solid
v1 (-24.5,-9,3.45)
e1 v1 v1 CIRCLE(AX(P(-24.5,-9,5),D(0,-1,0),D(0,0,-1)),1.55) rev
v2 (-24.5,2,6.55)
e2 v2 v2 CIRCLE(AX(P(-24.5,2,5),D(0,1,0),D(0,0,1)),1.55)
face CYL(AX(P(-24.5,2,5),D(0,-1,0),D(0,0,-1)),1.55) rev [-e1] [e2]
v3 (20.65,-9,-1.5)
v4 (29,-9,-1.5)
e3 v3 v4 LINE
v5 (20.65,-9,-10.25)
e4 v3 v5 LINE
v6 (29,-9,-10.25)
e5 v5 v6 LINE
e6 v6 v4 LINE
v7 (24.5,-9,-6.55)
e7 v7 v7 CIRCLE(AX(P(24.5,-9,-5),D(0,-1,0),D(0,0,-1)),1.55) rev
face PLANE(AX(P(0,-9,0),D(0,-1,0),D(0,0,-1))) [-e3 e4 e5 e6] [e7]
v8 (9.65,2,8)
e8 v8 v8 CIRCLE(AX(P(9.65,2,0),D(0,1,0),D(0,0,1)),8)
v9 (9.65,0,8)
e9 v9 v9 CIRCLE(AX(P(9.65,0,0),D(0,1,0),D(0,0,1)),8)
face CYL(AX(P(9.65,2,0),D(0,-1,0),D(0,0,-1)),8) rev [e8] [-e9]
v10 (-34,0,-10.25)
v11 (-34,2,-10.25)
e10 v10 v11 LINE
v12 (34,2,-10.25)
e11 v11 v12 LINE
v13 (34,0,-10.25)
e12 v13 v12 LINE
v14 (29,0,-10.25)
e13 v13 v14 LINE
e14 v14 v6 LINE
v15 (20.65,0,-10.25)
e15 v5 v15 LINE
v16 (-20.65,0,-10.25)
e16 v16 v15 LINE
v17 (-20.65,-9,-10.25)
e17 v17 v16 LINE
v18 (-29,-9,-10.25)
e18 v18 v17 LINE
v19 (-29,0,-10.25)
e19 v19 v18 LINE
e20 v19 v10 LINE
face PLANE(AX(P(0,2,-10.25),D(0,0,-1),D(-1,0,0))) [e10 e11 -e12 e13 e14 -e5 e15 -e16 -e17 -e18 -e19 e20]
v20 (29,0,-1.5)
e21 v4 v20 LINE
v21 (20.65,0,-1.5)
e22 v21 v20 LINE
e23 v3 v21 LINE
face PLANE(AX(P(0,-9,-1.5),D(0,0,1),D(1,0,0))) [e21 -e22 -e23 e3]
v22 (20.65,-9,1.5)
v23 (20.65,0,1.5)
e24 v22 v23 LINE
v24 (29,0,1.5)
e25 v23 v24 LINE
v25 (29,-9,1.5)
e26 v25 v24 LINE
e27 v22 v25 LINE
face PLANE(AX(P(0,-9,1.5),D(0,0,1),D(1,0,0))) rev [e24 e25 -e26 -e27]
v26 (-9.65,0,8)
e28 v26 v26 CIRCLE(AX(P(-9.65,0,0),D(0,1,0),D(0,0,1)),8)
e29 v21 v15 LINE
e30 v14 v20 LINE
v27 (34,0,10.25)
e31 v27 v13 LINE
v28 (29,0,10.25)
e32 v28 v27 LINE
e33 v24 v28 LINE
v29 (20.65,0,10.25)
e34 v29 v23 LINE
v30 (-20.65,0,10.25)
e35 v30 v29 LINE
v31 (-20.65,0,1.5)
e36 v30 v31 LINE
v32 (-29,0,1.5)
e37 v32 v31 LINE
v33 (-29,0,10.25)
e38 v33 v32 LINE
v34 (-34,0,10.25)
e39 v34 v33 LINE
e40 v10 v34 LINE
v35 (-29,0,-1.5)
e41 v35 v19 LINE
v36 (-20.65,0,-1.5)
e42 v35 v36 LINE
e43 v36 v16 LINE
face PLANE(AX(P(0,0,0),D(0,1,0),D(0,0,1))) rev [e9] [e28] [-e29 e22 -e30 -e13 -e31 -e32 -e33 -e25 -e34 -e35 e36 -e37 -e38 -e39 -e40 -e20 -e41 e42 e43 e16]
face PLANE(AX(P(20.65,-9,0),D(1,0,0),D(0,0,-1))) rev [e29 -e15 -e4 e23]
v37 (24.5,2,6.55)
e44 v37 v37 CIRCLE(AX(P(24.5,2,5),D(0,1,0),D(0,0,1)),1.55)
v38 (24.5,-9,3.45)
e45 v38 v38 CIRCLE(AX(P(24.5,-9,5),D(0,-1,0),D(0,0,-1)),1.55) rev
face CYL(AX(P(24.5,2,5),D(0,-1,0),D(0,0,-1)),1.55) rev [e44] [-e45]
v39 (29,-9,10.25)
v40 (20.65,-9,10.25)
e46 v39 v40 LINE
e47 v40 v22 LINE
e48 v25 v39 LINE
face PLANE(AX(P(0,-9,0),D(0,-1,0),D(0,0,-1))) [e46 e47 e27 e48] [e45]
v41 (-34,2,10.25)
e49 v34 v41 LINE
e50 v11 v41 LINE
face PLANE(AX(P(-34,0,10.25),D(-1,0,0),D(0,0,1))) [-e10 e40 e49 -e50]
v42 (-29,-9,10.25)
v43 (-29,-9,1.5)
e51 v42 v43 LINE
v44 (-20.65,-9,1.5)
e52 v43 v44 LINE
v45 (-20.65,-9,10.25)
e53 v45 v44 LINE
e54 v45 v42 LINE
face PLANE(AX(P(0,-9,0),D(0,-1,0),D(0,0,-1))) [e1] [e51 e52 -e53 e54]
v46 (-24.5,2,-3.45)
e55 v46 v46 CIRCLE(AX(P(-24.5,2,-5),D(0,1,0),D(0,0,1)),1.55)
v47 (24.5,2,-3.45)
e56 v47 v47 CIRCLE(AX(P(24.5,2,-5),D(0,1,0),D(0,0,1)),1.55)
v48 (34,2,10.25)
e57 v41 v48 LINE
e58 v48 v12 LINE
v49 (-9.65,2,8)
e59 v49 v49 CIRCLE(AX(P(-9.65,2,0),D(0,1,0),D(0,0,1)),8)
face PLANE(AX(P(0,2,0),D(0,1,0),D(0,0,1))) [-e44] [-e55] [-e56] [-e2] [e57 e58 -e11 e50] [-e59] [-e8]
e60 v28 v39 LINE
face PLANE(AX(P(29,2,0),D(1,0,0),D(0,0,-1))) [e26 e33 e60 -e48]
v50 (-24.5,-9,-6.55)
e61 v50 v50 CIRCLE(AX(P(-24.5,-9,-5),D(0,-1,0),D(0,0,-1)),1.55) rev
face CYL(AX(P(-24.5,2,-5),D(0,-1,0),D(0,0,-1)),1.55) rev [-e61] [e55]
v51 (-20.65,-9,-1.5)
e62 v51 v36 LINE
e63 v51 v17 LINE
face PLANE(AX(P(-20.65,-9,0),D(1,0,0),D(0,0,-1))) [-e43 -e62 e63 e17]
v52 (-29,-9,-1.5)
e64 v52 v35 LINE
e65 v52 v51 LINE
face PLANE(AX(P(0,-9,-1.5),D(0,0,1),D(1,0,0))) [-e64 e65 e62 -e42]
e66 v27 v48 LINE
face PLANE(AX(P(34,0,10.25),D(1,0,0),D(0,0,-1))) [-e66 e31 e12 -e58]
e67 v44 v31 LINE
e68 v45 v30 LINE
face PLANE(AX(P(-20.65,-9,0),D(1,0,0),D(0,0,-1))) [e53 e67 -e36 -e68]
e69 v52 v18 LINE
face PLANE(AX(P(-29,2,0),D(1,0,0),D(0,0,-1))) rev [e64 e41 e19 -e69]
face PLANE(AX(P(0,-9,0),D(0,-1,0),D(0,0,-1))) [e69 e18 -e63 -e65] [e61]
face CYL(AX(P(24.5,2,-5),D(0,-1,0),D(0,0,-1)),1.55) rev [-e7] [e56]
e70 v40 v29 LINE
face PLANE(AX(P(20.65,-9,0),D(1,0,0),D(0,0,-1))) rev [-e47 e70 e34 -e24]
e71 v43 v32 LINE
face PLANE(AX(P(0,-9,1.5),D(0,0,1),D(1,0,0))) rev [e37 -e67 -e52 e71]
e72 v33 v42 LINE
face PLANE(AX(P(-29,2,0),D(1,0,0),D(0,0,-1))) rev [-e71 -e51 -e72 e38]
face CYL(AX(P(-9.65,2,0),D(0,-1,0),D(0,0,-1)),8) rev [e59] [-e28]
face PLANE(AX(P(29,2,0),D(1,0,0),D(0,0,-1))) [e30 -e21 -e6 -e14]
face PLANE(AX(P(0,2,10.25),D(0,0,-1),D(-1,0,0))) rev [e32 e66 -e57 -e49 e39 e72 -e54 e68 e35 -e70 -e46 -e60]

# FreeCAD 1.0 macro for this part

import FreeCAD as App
import Part
import Sketcher
Q = App.Units.Quantity


def add_polygon(sketch, points):
    """Adds a closed chain of lines whose ends are joined by coincident constraints."""
    first, n = sketch.GeometryCount, len(points)
    for a, b in zip(points, points[1:] + points[:1]):
        sketch.addGeometry(Part.LineSegment(App.Vector(*a, 0), App.Vector(*b, 0)), False)
    for i in range(n):
        sketch.addConstraint(Sketcher.Constraint("Coincident", first + i, 2, first + (i + 1) % n, 1))

doc = App.newDocument("Part")
params = doc.addObject("Spreadsheet::Sheet", "Params")
for row, (alias, value) in enumerate([
    ("sketch1_diameter", "16 mm"),
    ("sketch1_diameter2", "3.1 mm"),
    ("sketch1_width", "58 mm"),
    ("sketch1_height", "20.5 mm"),
    ("pad1_length", "2 mm"),
    ("sketch2_diameter", "3.1 mm"),
    ("sketch2_width", "8.35 mm"),
    ("sketch2_height", "8.75 mm"),
    ("pad2_length", "9 mm"),
    ("sketch3_width", "5 mm"),
    ("sketch3_height", "20.5 mm"),
    ("pad3_length", "2 mm"),
], start=1):
    params.set(f"A{row}", alias)
    params.set(f"B{row}", "=" + value)
    params.setAlias(f"B{row}", alias)

body = doc.addObject("PartDesign::Body", "Body")

sketch1 = body.newObject("Sketcher::SketchObject", "Sketch")
sketch1.AttachmentSupport = (doc.getObject("XZ_Plane"), [""])
sketch1.MapMode = "FlatFace"
add_polygon(sketch1, [(-29, -10.2), (-29, 10.2), (29, 10.2), (29, -10.2)])
sketch1.addGeometry(Part.Circle(App.Vector(-24.5, 5, 0), App.Vector(0, 0, 1), 1.6), False)
sketch1.addGeometry(Part.Circle(App.Vector(24.5, 5, 0), App.Vector(0, 0, 1), 1.6), False)
sketch1.addGeometry(Part.Circle(App.Vector(-9.7, 0, 0), App.Vector(0, 0, 1), 8), False)
sketch1.addGeometry(Part.Circle(App.Vector(-24.5, -5, 0), App.Vector(0, 0, 1), 1.6), False)
sketch1.addGeometry(Part.Circle(App.Vector(9.7, 0, 0), App.Vector(0, 0, 1), 8), False)
sketch1.addGeometry(Part.Circle(App.Vector(24.5, -5, 0), App.Vector(0, 0, 1), 1.6), False)
sketch1.addConstraint(Sketcher.Constraint("Vertical", 0))
sketch1.addConstraint(Sketcher.Constraint("Horizontal", 1))
sketch1.addConstraint(Sketcher.Constraint("Vertical", 2))
sketch1.addConstraint(Sketcher.Constraint("Horizontal", 3))
sketch1.addConstraint(Sketcher.Constraint("Equal", 4, 5))
sketch1.addConstraint(Sketcher.Constraint("Equal", 5, 7))
sketch1.addConstraint(Sketcher.Constraint("Equal", 6, 8))
sketch1.addConstraint(Sketcher.Constraint("Equal", 7, 9))
sketch1.addConstraint(Sketcher.Constraint("Symmetric", 5, 3, 7, 3, -1, 1))
sketch1.addConstraint(Sketcher.Constraint("Symmetric", 6, 3, 8, 3, -1, 1))
sketch1.addConstraint(Sketcher.Constraint("Symmetric", 4, 3, 9, 3, -1, 1))
sketch1.addConstraint(Sketcher.Constraint("Symmetric", 0, 2, 2, 2, -1, 1))
sketch1.addConstraint(Sketcher.Constraint("Symmetric", 4, 3, 5, 3, -2))
sketch1.addConstraint(Sketcher.Constraint("PointOnObject", 6, 3, -1))
sketch1.addConstraint(Sketcher.Constraint("Diameter", 6, Q("16 mm")))
sketch1.addConstraint(Sketcher.Constraint("Diameter", 4, Q("3.1 mm")))
sketch1.addConstraint(Sketcher.Constraint("DistanceX", 1, 1, 1, 2, Q("58 mm")))
sketch1.addConstraint(Sketcher.Constraint("DistanceY", 0, 1, 0, 2, Q("20.5 mm")))
sketch1.addConstraint(Sketcher.Constraint("DistanceY", -1, 1, 4, 3, Q("5 mm")))
sketch1.addConstraint(Sketcher.Constraint("DistanceX", 4, 3, 5, 3, Q("49 mm")))
sketch1.addConstraint(Sketcher.Constraint("DistanceX", 6, 3, 8, 3, Q("19.3 mm")))
sketch1.setExpression("Constraints[18]", "Params.sketch1_diameter")
sketch1.setExpression("Constraints[19]", "Params.sketch1_diameter2")
sketch1.setExpression("Constraints[20]", "Params.sketch1_width")
sketch1.setExpression("Constraints[21]", "Params.sketch1_height")
pad1 = body.newObject("PartDesign::Pad", "Pad")
pad1.Profile = sketch1
pad1.setExpression("Length", "Params.pad1_length")
pad1.Reversed = True

sketch2 = body.newObject("Sketcher::SketchObject", "Sketch001")
sketch2.AttachmentSupport = (doc.getObject("XZ_Plane"), [""])
sketch2.MapMode = "FlatFace"
add_polygon(sketch2, [(-29, 10.2), (-29, 1.5), (-20.6, 1.5), (-20.6, 10.2)])
sketch2.addGeometry(Part.Circle(App.Vector(-24.5, 5, 0), App.Vector(0, 0, 1), 1.6), False)
add_polygon(sketch2, [(-29, -1.5), (-29, -10.2), (-20.6, -10.2), (-20.6, -1.5)])
sketch2.addGeometry(Part.Circle(App.Vector(-24.5, -5, 0), App.Vector(0, 0, 1), 1.6), False)
add_polygon(sketch2, [(20.6, 10.2), (20.6, 1.5), (29, 1.5), (29, 10.2)])
sketch2.addGeometry(Part.Circle(App.Vector(24.5, 5, 0), App.Vector(0, 0, 1), 1.6), False)
add_polygon(sketch2, [(20.6, -1.5), (20.6, -10.2), (29, -10.2), (29, -1.5)])
sketch2.addGeometry(Part.Circle(App.Vector(24.5, -5, 0), App.Vector(0, 0, 1), 1.6), False)
sketch2.addConstraint(Sketcher.Constraint("Vertical", 0))
sketch2.addConstraint(Sketcher.Constraint("Horizontal", 1))
sketch2.addConstraint(Sketcher.Constraint("Vertical", 2))
sketch2.addConstraint(Sketcher.Constraint("Horizontal", 3))
sketch2.addConstraint(Sketcher.Constraint("Vertical", 5))
sketch2.addConstraint(Sketcher.Constraint("Horizontal", 6))
sketch2.addConstraint(Sketcher.Constraint("Vertical", 7))
sketch2.addConstraint(Sketcher.Constraint("Horizontal", 8))
sketch2.addConstraint(Sketcher.Constraint("Vertical", 10))
sketch2.addConstraint(Sketcher.Constraint("Horizontal", 11))
sketch2.addConstraint(Sketcher.Constraint("Vertical", 12))
sketch2.addConstraint(Sketcher.Constraint("Horizontal", 13))
sketch2.addConstraint(Sketcher.Constraint("Vertical", 15))
sketch2.addConstraint(Sketcher.Constraint("Horizontal", 16))
sketch2.addConstraint(Sketcher.Constraint("Vertical", 17))
sketch2.addConstraint(Sketcher.Constraint("Horizontal", 18))
sketch2.addConstraint(Sketcher.Constraint("Equal", 4, 9))
sketch2.addConstraint(Sketcher.Constraint("Equal", 9, 14))
sketch2.addConstraint(Sketcher.Constraint("Equal", 14, 19))
sketch2.addConstraint(Sketcher.Constraint("Symmetric", 9, 3, 14, 3, -1, 1))
sketch2.addConstraint(Sketcher.Constraint("Symmetric", 4, 3, 19, 3, -1, 1))
sketch2.addConstraint(Sketcher.Constraint("Symmetric", 7, 2, 10, 2, -1, 1))
sketch2.addConstraint(Sketcher.Constraint("Symmetric", 5, 2, 12, 2, -1, 1))
sketch2.addConstraint(Sketcher.Constraint("Symmetric", 2, 2, 15, 2, -1, 1))
sketch2.addConstraint(Sketcher.Constraint("Symmetric", 0, 2, 17, 2, -1, 1))
sketch2.addConstraint(Sketcher.Constraint("Symmetric", 4, 3, 14, 3, -2))
sketch2.addConstraint(Sketcher.Constraint("Symmetric", 1, 2, 10, 2, -2))
sketch2.addConstraint(Sketcher.Constraint("Symmetric", 3, 2, 12, 2, -2))
sketch2.addConstraint(Sketcher.Constraint("Diameter", 4, Q("3.1 mm")))
sketch2.addConstraint(Sketcher.Constraint("DistanceY", -1, 1, 4, 3, Q("5 mm")))
sketch2.addConstraint(Sketcher.Constraint("DistanceX", 0, 2, -1, 1, Q("29 mm")))
sketch2.addConstraint(Sketcher.Constraint("DistanceX", 4, 3, 14, 3, Q("49 mm")))
sketch2.addConstraint(Sketcher.Constraint("DistanceY", 7, 2, 1, 2, Q("3 mm")))
sketch2.addConstraint(Sketcher.Constraint("DistanceX", 1, 1, 1, 2, Q("8.35 mm")))
sketch2.addConstraint(Sketcher.Constraint("DistanceY", 0, 2, 0, 1, Q("8.75 mm")))
sketch2.setExpression("Constraints[44]", "Params.sketch2_diameter")
sketch2.setExpression("Constraints[49]", "Params.sketch2_width")
sketch2.setExpression("Constraints[50]", "Params.sketch2_height")
pad2 = body.newObject("PartDesign::Pad", "Pad001")
pad2.Profile = sketch2
pad2.setExpression("Length", "Params.pad2_length")

sketch3 = body.newObject("Sketcher::SketchObject", "Sketch002")
sketch3.AttachmentSupport = (doc.getObject("XZ_Plane"), [""])
sketch3.MapMode = "FlatFace"
sketch3.AttachmentOffset = App.Placement(App.Vector(0, 0, -2), App.Rotation())
add_polygon(sketch3, [(-34, -10), (-34, 10), (-29, 10), (-29, -10)])
add_polygon(sketch3, [(29, -10), (29, 10), (34, 10), (34, -10)])
sketch3.addConstraint(Sketcher.Constraint("Vertical", 0))
sketch3.addConstraint(Sketcher.Constraint("Horizontal", 1))
sketch3.addConstraint(Sketcher.Constraint("Vertical", 2))
sketch3.addConstraint(Sketcher.Constraint("Horizontal", 3))
sketch3.addConstraint(Sketcher.Constraint("Vertical", 4))
sketch3.addConstraint(Sketcher.Constraint("Horizontal", 5))
sketch3.addConstraint(Sketcher.Constraint("Vertical", 6))
sketch3.addConstraint(Sketcher.Constraint("Horizontal", 7))
sketch3.addConstraint(Sketcher.Constraint("Symmetric", 2, 2, 4, 2, -1, 1))
sketch3.addConstraint(Sketcher.Constraint("Symmetric", 0, 2, 6, 2, -1, 1))
sketch3.addConstraint(Sketcher.Constraint("Horizontal", 1, 2, 4, 2))
sketch3.addConstraint(Sketcher.Constraint("DistanceX", 1, 1, 1, 2, Q("5 mm")))
sketch3.addConstraint(Sketcher.Constraint("DistanceY", 0, 1, 0, 2, Q("20.5 mm")))
sketch3.addConstraint(Sketcher.Constraint("DistanceX", 0, 2, -1, 1, Q("34 mm")))
sketch3.setExpression("Constraints[19]", "Params.sketch3_width")
sketch3.setExpression("Constraints[20]", "Params.sketch3_height")
pad3 = body.newObject("PartDesign::Pad", "Pad002")
pad3.Profile = sketch3
pad3.setExpression("Length", "Params.pad3_length")

doc.recompute()
